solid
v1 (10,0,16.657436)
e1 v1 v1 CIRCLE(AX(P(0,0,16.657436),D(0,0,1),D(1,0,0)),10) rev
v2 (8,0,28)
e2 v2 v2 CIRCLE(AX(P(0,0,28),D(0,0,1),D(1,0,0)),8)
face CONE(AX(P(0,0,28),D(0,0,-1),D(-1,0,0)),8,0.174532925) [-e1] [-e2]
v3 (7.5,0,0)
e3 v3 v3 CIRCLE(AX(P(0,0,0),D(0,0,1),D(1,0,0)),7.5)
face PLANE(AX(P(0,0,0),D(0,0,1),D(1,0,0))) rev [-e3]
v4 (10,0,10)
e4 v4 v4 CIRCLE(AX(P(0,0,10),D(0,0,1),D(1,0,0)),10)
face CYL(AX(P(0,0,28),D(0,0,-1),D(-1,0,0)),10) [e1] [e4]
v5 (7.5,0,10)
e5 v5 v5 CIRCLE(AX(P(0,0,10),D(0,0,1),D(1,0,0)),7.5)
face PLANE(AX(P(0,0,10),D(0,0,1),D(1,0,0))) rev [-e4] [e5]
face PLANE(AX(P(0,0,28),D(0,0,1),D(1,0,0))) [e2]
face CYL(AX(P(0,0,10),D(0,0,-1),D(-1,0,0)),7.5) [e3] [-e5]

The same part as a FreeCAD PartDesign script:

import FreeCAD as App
import Part
import Sketcher
Q = App.Units.Quantity


def edges_at(feature, points):
    """Names of the edges that pass closest to the given points."""
    edges = feature.Shape.Edges
    near = lambda p: min(range(len(edges)), key=lambda i: edges[i].distToShape(Part.Vertex(*p))[0])
    return sorted({f"Edge{near(p) + 1}" for p in points})

doc = App.newDocument("Part")
body = doc.addObject("PartDesign::Body", "Body")

# Sketch on XY plane
sketch1 = body.newObject("Sketcher::SketchObject", "Sketch")
sketch1.AttachmentSupport = (doc.getObject("XY_Plane"), [""])
sketch1.MapMode = "FlatFace"
sketch1.addGeometry(Part.Circle(App.Vector(0, 0, 0), App.Vector(0, 0, 1), 7.5), False)
sketch1.addConstraint([
    Sketcher.Constraint("Coincident", 0, 3, -1, 1),
    Sketcher.Constraint("Diameter", 0, Q("15 mm")),
])
pad1 = body.newObject("PartDesign::Pad", "Pad")
pad1.Profile = sketch1
pad1.Length = 10

# Sketch on XY plane
sketch2 = body.newObject("Sketcher::SketchObject", "Sketch001")
sketch2.AttachmentSupport = (doc.getObject("XY_Plane"), [""])
sketch2.MapMode = "FlatFace"
sketch2.AttachmentOffset = App.Placement(App.Vector(0, 0, 10), App.Rotation())
sketch2.addGeometry(Part.Circle(App.Vector(0, 0, 0), App.Vector(0, 0, 1), 10), False)
sketch2.addConstraint([
    Sketcher.Constraint("Coincident", 0, 3, -1, 1),
    Sketcher.Constraint("Diameter", 0, Q("20 mm")),
])
pad2 = body.newObject("PartDesign::Pad", "Pad001")
pad2.Profile = sketch2
pad2.Length = 18
doc.recompute()

chamfer = body.newObject("PartDesign::Chamfer", "Chamfer")
chamfer.Base = (pad2, edges_at(pad2, [(-10, 0, 28)]))
chamfer.ChamferType = "Two distances"
chamfer.Size = 2
chamfer.Size2 = 11.342564
chamfer.FlipDirection = True

doc.recompute()
